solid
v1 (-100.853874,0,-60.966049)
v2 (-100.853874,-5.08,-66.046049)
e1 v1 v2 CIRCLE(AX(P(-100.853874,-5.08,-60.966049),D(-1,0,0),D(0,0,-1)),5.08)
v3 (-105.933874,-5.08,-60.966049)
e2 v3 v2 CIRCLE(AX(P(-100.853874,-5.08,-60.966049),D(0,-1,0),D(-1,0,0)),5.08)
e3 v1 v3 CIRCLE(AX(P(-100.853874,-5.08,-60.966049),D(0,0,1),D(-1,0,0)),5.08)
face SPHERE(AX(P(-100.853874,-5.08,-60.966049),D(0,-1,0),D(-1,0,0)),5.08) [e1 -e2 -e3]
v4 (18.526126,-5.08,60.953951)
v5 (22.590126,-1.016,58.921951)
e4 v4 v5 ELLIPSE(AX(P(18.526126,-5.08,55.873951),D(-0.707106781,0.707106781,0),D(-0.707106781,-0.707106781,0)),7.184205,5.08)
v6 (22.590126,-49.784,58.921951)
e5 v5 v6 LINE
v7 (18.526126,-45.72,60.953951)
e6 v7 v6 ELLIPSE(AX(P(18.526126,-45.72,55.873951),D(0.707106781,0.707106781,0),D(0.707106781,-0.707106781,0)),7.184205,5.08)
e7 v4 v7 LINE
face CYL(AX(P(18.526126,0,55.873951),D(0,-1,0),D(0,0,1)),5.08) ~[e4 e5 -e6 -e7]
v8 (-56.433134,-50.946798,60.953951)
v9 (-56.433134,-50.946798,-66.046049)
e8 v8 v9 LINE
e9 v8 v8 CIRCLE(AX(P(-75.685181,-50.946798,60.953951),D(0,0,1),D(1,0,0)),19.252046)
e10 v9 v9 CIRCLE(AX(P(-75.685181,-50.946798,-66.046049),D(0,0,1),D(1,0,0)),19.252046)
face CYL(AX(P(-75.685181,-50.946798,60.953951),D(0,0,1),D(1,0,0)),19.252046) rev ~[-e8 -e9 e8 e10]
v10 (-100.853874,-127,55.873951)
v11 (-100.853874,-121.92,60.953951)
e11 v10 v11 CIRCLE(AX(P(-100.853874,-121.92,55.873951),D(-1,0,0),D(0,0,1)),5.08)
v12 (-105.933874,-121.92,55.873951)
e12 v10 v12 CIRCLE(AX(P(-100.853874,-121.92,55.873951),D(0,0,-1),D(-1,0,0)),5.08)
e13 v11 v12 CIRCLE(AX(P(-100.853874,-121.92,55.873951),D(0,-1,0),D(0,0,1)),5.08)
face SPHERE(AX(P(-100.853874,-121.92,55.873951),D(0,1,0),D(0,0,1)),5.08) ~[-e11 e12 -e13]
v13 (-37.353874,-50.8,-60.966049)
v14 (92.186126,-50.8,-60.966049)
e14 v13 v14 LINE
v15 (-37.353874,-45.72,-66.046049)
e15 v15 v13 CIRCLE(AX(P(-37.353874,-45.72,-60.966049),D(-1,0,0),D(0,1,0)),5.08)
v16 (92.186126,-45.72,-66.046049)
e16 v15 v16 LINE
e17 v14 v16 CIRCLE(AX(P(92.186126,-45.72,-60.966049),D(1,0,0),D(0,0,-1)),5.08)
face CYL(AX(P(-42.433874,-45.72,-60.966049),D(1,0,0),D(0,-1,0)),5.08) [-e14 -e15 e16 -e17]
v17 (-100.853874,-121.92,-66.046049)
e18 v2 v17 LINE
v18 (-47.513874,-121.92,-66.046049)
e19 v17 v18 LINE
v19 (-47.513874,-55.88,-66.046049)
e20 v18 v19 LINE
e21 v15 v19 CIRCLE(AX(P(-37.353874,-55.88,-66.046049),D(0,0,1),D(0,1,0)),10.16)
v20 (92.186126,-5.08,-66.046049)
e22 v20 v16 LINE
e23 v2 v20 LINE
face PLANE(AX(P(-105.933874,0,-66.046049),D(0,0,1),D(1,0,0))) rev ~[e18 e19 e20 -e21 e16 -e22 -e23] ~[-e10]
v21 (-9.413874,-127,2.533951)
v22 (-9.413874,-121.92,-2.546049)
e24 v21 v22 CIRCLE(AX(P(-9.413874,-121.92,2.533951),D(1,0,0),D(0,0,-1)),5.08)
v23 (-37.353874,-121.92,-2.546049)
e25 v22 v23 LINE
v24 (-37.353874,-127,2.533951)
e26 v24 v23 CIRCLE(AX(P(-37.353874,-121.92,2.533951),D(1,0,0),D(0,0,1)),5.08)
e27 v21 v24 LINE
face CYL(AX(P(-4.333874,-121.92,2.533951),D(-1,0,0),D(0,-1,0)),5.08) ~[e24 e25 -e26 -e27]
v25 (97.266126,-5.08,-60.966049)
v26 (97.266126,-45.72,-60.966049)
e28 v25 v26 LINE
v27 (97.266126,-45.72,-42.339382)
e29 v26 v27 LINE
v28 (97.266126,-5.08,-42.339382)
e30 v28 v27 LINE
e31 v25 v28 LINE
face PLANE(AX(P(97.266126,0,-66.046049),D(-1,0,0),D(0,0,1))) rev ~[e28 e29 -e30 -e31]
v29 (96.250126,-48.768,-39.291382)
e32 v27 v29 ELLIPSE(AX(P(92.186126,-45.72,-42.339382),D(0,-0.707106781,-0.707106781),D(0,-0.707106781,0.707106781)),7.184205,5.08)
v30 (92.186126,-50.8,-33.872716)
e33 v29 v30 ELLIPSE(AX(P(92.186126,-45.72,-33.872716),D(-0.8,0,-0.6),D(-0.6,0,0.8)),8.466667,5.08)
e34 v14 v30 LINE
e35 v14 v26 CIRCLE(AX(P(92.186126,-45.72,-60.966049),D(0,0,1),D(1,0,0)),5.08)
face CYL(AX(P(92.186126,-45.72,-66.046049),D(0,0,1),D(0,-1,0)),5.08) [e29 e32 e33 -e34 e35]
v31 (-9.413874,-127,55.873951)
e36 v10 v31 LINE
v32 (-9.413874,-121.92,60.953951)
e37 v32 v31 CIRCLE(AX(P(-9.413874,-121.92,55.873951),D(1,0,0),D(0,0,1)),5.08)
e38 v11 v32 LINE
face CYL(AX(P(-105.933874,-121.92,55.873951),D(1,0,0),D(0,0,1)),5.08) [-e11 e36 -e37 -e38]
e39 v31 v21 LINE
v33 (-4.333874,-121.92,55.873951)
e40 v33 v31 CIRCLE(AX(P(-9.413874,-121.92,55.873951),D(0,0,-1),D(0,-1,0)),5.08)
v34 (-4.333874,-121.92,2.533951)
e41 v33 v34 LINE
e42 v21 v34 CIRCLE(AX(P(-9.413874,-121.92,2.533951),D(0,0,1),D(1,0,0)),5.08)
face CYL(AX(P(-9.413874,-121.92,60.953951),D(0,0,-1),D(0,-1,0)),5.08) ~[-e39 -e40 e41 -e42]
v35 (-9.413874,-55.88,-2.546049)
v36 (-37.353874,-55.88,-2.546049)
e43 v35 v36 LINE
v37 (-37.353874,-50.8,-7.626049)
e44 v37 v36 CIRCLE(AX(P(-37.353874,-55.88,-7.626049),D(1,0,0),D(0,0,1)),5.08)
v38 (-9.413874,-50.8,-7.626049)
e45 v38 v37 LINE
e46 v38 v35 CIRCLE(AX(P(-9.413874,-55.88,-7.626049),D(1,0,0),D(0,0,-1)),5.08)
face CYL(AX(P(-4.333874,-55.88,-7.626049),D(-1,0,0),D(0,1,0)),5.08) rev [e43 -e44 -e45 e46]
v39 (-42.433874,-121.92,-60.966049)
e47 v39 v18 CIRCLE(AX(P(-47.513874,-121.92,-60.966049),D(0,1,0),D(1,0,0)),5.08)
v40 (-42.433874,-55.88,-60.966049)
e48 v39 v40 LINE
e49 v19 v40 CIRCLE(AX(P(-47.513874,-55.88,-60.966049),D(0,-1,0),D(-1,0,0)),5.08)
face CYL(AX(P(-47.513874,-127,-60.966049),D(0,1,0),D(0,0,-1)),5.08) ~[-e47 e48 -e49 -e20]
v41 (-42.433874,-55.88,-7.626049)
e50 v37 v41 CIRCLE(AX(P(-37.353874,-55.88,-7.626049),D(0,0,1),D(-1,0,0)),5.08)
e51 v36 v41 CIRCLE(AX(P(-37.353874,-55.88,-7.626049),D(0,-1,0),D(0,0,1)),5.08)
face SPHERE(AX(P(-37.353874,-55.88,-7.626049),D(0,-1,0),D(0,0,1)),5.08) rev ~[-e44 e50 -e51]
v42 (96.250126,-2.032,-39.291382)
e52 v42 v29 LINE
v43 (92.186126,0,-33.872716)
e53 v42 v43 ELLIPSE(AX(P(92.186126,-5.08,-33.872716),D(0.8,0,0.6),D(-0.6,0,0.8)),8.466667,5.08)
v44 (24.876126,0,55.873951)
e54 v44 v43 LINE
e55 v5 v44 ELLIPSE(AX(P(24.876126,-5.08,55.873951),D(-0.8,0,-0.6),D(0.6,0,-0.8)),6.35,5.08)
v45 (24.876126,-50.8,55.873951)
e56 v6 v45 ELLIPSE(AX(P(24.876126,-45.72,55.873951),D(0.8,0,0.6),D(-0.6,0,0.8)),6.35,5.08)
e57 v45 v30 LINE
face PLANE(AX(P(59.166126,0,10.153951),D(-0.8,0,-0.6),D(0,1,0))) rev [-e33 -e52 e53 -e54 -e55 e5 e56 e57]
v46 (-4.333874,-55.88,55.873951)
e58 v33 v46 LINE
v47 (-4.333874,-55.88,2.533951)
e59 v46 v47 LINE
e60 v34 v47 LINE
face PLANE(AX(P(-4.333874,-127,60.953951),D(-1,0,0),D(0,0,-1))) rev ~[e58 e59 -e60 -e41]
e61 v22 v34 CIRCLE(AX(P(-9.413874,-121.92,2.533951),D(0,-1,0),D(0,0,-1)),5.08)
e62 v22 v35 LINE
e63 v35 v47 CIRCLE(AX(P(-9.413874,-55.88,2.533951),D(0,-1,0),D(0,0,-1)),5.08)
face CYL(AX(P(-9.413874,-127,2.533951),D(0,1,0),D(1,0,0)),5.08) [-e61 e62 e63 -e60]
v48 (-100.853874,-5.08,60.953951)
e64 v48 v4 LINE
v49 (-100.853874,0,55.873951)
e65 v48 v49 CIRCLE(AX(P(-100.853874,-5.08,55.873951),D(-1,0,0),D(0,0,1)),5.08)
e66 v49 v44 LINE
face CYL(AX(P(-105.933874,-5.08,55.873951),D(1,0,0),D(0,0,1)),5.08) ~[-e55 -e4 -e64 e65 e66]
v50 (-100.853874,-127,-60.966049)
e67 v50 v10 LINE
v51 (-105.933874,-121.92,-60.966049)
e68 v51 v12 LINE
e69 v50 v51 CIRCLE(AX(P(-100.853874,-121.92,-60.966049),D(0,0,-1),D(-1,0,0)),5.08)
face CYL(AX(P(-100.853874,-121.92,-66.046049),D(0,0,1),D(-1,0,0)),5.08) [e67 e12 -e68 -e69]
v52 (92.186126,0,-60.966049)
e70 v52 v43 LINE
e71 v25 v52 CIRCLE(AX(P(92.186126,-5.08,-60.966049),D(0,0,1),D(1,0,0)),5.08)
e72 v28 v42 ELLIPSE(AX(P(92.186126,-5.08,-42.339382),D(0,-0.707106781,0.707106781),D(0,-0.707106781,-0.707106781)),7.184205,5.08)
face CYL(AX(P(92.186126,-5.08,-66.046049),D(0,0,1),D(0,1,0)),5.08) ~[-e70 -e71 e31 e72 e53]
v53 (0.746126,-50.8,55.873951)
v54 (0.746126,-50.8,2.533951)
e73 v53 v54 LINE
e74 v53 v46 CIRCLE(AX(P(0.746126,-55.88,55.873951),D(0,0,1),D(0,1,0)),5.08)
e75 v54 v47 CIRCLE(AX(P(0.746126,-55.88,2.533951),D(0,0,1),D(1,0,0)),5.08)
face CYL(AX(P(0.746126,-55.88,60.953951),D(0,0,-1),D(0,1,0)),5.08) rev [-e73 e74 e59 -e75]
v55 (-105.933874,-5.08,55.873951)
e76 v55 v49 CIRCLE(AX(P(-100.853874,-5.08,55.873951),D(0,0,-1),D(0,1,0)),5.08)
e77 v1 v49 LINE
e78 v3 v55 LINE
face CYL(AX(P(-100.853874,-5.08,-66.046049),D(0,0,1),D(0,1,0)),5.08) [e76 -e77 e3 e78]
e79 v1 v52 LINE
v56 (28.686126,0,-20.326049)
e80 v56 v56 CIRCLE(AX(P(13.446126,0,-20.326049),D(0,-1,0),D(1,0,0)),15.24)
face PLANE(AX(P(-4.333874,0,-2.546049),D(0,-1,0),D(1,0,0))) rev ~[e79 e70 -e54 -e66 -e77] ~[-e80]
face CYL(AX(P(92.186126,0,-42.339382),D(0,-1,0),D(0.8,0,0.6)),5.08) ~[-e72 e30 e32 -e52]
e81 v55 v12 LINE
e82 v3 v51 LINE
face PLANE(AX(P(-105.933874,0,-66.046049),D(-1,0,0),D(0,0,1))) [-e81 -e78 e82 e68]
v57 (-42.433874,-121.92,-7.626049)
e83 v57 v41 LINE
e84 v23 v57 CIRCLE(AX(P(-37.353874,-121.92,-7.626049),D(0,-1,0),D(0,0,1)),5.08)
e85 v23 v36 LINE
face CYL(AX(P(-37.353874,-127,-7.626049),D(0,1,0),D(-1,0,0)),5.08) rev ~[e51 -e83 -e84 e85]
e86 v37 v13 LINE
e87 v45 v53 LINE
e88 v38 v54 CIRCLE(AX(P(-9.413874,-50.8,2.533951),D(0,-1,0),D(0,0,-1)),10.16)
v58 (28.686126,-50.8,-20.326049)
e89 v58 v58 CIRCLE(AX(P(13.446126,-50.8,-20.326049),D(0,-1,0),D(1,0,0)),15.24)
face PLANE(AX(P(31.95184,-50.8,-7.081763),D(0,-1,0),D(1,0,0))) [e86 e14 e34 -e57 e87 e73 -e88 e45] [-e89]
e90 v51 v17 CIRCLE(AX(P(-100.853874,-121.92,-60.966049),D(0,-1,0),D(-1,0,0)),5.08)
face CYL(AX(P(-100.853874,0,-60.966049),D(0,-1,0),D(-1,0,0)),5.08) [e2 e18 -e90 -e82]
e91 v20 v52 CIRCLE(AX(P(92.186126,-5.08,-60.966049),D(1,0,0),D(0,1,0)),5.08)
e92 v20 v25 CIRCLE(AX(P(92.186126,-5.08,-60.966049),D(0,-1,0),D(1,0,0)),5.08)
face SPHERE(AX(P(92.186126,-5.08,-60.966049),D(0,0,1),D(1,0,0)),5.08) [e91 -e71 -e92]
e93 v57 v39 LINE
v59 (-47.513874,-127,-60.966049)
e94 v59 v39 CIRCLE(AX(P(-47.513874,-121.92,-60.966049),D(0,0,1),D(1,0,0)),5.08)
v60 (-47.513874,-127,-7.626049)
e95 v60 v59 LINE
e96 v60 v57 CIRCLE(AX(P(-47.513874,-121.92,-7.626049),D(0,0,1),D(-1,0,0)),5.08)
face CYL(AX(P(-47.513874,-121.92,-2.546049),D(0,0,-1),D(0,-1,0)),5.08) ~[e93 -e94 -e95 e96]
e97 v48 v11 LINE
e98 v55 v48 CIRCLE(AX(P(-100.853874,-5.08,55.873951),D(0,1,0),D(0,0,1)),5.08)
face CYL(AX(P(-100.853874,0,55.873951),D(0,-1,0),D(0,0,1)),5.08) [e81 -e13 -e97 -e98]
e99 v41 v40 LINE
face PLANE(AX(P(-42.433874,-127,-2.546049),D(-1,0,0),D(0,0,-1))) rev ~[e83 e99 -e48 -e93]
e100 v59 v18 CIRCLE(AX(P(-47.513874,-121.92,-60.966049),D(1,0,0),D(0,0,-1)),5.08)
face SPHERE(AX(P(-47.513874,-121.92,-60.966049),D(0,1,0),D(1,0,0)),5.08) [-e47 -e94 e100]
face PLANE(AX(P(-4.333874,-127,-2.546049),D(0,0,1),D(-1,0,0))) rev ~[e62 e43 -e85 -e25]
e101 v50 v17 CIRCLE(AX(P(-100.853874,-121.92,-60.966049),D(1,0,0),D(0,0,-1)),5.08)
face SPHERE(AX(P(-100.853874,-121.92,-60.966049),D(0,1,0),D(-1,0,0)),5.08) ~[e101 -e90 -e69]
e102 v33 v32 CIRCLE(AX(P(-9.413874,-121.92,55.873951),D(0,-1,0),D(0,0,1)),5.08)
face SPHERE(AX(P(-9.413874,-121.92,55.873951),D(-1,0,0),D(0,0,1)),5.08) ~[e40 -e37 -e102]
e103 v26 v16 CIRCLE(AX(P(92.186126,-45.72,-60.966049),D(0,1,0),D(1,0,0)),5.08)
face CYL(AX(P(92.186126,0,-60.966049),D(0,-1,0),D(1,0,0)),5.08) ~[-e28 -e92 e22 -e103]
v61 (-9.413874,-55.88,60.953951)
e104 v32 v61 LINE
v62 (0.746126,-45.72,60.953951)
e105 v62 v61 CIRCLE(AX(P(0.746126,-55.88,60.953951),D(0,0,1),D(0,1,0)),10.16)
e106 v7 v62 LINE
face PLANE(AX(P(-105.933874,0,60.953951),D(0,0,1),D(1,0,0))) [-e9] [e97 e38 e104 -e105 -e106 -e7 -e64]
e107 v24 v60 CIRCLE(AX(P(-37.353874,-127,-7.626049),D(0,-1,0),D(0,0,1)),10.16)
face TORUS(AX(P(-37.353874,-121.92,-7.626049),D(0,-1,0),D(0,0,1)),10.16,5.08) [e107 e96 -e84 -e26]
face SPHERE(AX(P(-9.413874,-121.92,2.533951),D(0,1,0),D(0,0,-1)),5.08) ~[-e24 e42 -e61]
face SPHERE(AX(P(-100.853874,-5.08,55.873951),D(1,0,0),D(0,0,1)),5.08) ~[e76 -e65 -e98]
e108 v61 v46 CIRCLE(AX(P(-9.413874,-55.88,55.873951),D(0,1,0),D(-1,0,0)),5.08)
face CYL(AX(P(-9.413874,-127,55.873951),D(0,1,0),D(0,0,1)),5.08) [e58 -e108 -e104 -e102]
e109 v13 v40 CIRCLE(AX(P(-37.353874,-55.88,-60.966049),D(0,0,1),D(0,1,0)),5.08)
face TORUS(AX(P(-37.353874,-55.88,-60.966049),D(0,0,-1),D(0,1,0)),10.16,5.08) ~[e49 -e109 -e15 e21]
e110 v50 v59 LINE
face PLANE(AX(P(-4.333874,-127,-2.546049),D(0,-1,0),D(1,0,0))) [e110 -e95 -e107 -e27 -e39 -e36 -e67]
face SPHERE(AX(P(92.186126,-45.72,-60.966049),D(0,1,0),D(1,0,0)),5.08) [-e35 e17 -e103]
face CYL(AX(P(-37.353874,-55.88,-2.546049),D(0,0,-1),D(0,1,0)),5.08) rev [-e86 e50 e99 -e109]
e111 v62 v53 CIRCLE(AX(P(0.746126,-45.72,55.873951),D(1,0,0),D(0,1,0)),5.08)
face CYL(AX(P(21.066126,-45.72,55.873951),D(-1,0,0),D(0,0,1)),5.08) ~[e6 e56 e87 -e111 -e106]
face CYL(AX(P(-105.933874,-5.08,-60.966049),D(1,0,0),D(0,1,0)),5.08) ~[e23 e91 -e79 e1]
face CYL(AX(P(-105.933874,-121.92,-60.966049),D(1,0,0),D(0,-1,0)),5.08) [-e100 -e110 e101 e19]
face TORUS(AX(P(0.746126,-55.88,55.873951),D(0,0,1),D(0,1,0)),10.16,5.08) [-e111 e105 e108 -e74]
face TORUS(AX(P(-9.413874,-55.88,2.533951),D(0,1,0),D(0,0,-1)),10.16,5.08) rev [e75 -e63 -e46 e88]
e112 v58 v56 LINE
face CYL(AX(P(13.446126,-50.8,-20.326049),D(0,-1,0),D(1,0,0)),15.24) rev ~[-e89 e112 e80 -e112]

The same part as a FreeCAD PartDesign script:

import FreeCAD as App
import Part
import Sketcher

V = App.Vector
Q = App.Units.Quantity


def edges_at(feature, points):
    """Names of the edges that pass closest to the given points."""
    edges = feature.Shape.Edges
    near = lambda p: min(range(len(edges)), key=lambda i: edges[i].distToShape(Part.Vertex(*p))[0])
    return sorted({f"Edge{near(p) + 1}" for p in points})


def add_polygon(sketch, points):
    """Adds a closed chain of lines whose ends are joined by coincident constraints."""
    first, n = sketch.GeometryCount, len(points)
    for a, b in zip(points, points[1:] + points[:1]):
        sketch.addGeometry(Part.LineSegment(App.Vector(*a, 0), App.Vector(*b, 0)), False)
    for i in range(n):
        sketch.addConstraint(Sketcher.Constraint("Coincident", first + i, 2, first + (i + 1) % n, 1))

doc = App.newDocument("Part")
body = doc.addObject("PartDesign::Body", "Body")

# Sketch on XZ plane
sketch1 = body.newObject("Sketcher::SketchObject", "Sketch")
sketch1.AttachmentSupport = (doc.getObject("XZ_Plane"), [""])
sketch1.MapMode = "FlatFace"
add_polygon(sketch1, [(-105.933874, 60.953951), (-105.933874, -66.046049), (97.266126, -66.046049), (97.266126, 60.953951)])  # lines 0-3
sketch1.addConstraint(Sketcher.Constraint("Vertical", 0))
sketch1.addConstraint(Sketcher.Constraint("Horizontal", 1))
sketch1.addConstraint(Sketcher.Constraint("Vertical", 2))
sketch1.addConstraint(Sketcher.Constraint("Horizontal", 3))
sketch1.addConstraint(Sketcher.Constraint("DistanceX", 1, 1, 1, 2, Q("8 in")))
sketch1.addConstraint(Sketcher.Constraint("DistanceY", 0, 2, 0, 1, Q("5 in")))
sketch1.addConstraint(Sketcher.Constraint("DistanceY", 0, 2, -1, 1, Q("66.046049 mm")))
sketch1.addConstraint(Sketcher.Constraint("DistanceX", 0, 2, -1, 1, Q("105.933874 mm")))
pad1 = body.newObject("PartDesign::Pad", "Pad")
pad1.Profile = sketch1
pad1.Length = Q("5 in")

# Sketch on XZ plane
sketch2 = body.newObject("Sketcher::SketchObject", "Sketch001")
sketch2.AttachmentSupport = (doc.getObject("XZ_Plane"), [""])
sketch2.MapMode = "FlatFace"
sketch2.AttachmentOffset = App.Placement(V(0, 0, 5 * 25.4), App.Rotation())
add_polygon(sketch2, [(-42.433874, -2.546049), (-42.433874, -66.046049), (97.266126, -66.046049), (97.266126, 60.953951), (-4.333874, 60.953951), (-4.333874, -2.546049)])  # lines 0-5
sketch2.addConstraint(Sketcher.Constraint("Vertical", 0))
sketch2.addConstraint(Sketcher.Constraint("Horizontal", 1))
sketch2.addConstraint(Sketcher.Constraint("Vertical", 2))
sketch2.addConstraint(Sketcher.Constraint("Horizontal", 3))
sketch2.addConstraint(Sketcher.Constraint("Vertical", 4))
sketch2.addConstraint(Sketcher.Constraint("Horizontal", 5))
sketch2.addConstraint(Sketcher.Constraint("Equal", 0, 4))
sketch2.addConstraint(Sketcher.Constraint("DistanceX", 3, 2, 3, 1, Q("4 in")))
sketch2.addConstraint(Sketcher.Constraint("DistanceY", 2, 1, 2, 2, Q("5 in")))
sketch2.addConstraint(Sketcher.Constraint("DistanceX", 1, 1, 1, 2, Q("5.5 in")))
sketch2.addConstraint(Sketcher.Constraint("DistanceY", 0, 2, -1, 1, Q("66.046049 mm")))
sketch2.addConstraint(Sketcher.Constraint("DistanceX", 0, 2, -1, 1, Q("42.433874 mm")))
pocket1 = body.newObject("PartDesign::Pocket", "Pocket")
pocket1.Profile = sketch2
pocket1.Length = Q("3 in")
doc.recompute()

chamfer = body.newObject("PartDesign::Chamfer", "Chamfer")
chamfer.Base = (pocket1, edges_at(pocket1, [(97.266, -25.4, 60.954)]))
chamfer.ChamferType = "Two distances"
chamfer.Size = Q("3 in")
chamfer.Size2 = Q("4 in")
doc.recompute()

fillet = body.newObject("PartDesign::Fillet", "Fillet")
fillet.Base = (chamfer, edges_at(chamfer, [
    (-4.334, -88.9, -2.546),
    (-42.434, -88.9, -2.546),
    (-23.384, -127, -2.546),
    (-23.384, -50.8, -2.546),
    (-42.434, 0, 60.954),
    (21.066, -25.4, 60.954),
    (-105.934, -63.5, 60.954),
    (8.366, -50.8, 60.954),
    (-55.134, -127, 60.954),
    (-4.334, -88.9, 60.954),
    (-4.334, -127, 29.204),
    (-4.334, -50.8, 29.204),
    (-42.434, -88.9, -66.046),
    (-42.434, -127, -34.296),
    (-42.434, -50.8, -34.296),
    (97.266, 0, -53.346),
    (97.266, -25.4, -40.646),
    (97.266, -25.4, -66.046),
    (97.266, -50.8, -53.346),
    (-105.934, -63.5, -66.046),
    (-105.934, 0, -2.546),
    (-105.934, -127, -2.546),
    (-4.334, 0, -66.046),
    (27.416, -50.8, -66.046),
    (-74.184, -127, -66.046),
]))
fillet.Radius = Q("0.2 in")

# Sketch on XZ plane
sketch3 = body.newObject("Sketcher::SketchObject", "Sketch002")
sketch3.AttachmentSupport = (doc.getObject("XZ_Plane"), [""])
sketch3.MapMode = "FlatFace"
sketch3.AttachmentOffset = App.Placement(V(0, 0, 2 * 25.4), App.Rotation())
sketch3.addGeometry(Part.Circle(V(13.446126, -20.326049, 0), V(0, 0, 1), 15.24), False)
sketch3.addConstraint(Sketcher.Constraint("Diameter", 0, Q("1.2 in")))
sketch3.addConstraint(Sketcher.Constraint("DistanceY", 0, 3, -1, 1, Q("20.326049 mm")))
sketch3.addConstraint(Sketcher.Constraint("DistanceX", -1, 1, 0, 3, Q("13.446126 mm")))
pocket2 = body.newObject("PartDesign::Pocket", "Pocket001")
pocket2.Profile = sketch3
pocket2.Type = "ThroughAll"

# Sketch on XY plane
sketch4 = body.newObject("Sketcher::SketchObject", "Sketch003")
sketch4.AttachmentSupport = (doc.getObject("XY_Plane"), [""])
sketch4.MapMode = "FlatFace"
sketch4.AttachmentOffset = App.Placement(V(0, 0, 60.953951), App.Rotation())
sketch4.addGeometry(Part.Circle(V(-75.685181, -50.946798, 0), V(0, 0, 1), 19.252046), False)
sketch4.addConstraint(Sketcher.Constraint("Diameter", 0, Q("38.504093 mm")))
sketch4.addConstraint(Sketcher.Constraint("DistanceY", 0, 3, -1, 1, Q("50.946798 mm")))
sketch4.addConstraint(Sketcher.Constraint("DistanceX", 0, 3, -1, 1, Q("75.685181 mm")))
pocket3 = body.newObject("PartDesign::Pocket", "Pocket002")
pocket3.Profile = sketch4
pocket3.Type = "ThroughAll"

doc.recompute()
